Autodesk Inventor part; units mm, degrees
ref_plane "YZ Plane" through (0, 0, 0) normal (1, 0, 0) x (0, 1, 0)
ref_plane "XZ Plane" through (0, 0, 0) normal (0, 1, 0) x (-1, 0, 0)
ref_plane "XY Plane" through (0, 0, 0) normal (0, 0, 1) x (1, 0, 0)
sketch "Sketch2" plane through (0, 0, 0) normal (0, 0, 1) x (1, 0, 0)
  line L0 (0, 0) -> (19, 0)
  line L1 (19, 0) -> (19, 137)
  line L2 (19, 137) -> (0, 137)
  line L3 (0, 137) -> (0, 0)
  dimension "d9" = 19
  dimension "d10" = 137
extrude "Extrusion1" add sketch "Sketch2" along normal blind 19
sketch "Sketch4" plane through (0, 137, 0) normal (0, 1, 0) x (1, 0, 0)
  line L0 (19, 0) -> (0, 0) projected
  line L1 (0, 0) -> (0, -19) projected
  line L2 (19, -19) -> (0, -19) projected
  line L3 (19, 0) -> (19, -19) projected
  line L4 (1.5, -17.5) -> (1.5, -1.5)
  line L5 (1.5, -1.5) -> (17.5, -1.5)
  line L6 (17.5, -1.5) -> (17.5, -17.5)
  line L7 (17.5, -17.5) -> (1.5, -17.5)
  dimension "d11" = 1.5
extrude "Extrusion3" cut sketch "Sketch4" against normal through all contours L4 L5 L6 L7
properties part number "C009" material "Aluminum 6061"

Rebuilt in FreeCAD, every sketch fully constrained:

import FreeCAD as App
import Part
import Sketcher
from FreeCAD import Vector
Q = App.Units.Quantity

doc = App.newDocument("Part")
body = doc.addObject("PartDesign::Body", "Body")

sketch1 = body.newObject("Sketcher::SketchObject", "Sketch")
sketch1.AttachmentSupport = (doc.getObject("XY_Plane"), [""])
sketch1.MapMode = "FlatFace"
sketch1.addGeometry([
    Part.LineSegment(Vector(0, 137, 0), Vector(0, 0, 0)),
    Part.LineSegment(Vector(0, 0, 0), Vector(19, 0, 0)),
    Part.LineSegment(Vector(19, 0, 0), Vector(19, 137, 0)),
    Part.LineSegment(Vector(19, 137, 0), Vector(0, 137, 0)),
], False)
sketch1.addConstraint([
    Sketcher.Constraint("Coincident", 0, 2, 1, 1),
    Sketcher.Constraint("Coincident", 1, 2, 2, 1),
    Sketcher.Constraint("Coincident", 2, 2, 3, 1),
    Sketcher.Constraint("Coincident", 3, 2, 0, 1),
    Sketcher.Constraint("Vertical", 0),
    Sketcher.Constraint("Horizontal", 1),
    Sketcher.Constraint("Vertical", 2),
    Sketcher.Constraint("Horizontal", 3),
    Sketcher.Constraint("Coincident", 0, 2, -1, 1),
    Sketcher.Constraint("DistanceX", 1, 1, 1, 2, Q("19 mm")),
    Sketcher.Constraint("DistanceY", 0, 2, 0, 1, Q("137 mm")),
])
pad1 = body.newObject("PartDesign::Pad", "Pad")
pad1.Profile = sketch1
pad1.Length = 19

sketch2 = body.newObject("Sketcher::SketchObject", "Sketch001")
sketch2.AttachmentSupport = (doc.getObject("XZ_Plane"), [""])
sketch2.MapMode = "FlatFace"
sketch2.AttachmentOffset = App.Placement(Vector(0, 0, -137), App.Rotation())
sketch2.addGeometry([
    Part.LineSegment(Vector(1.5, 1.5, 0), Vector(1.5, 17.5, 0)),
    Part.LineSegment(Vector(1.5, 17.5, 0), Vector(17.5, 17.5, 0)),
    Part.LineSegment(Vector(17.5, 17.5, 0), Vector(17.5, 1.5, 0)),
    Part.LineSegment(Vector(17.5, 1.5, 0), Vector(1.5, 1.5, 0)),
], False)
sketch2.addConstraint([
    Sketcher.Constraint("Coincident", 0, 2, 1, 1),
    Sketcher.Constraint("Coincident", 1, 2, 2, 1),
    Sketcher.Constraint("Coincident", 2, 2, 3, 1),
    Sketcher.Constraint("Coincident", 3, 2, 0, 1),
    Sketcher.Constraint("Vertical", 0),
    Sketcher.Constraint("Horizontal", 1),
    Sketcher.Constraint("Vertical", 2),
    Sketcher.Constraint("Horizontal", 3),
    Sketcher.Constraint("Equal", 3, 0),
    Sketcher.Constraint("DistanceX", -1, 1, 0, 2, Q("1.5 mm")),
    Sketcher.Constraint("DistanceY", -1, 1, 2, 2, Q("1.5 mm")),
    Sketcher.Constraint("DistanceX", 1, 1, 1, 2, Q("16 mm")),
])
pocket1 = body.newObject("PartDesign::Pocket", "Pocket")
pocket1.Profile = sketch2
pocket1.Type = "ThroughAll"
pocket1.Reversed = True

doc.recompute()
